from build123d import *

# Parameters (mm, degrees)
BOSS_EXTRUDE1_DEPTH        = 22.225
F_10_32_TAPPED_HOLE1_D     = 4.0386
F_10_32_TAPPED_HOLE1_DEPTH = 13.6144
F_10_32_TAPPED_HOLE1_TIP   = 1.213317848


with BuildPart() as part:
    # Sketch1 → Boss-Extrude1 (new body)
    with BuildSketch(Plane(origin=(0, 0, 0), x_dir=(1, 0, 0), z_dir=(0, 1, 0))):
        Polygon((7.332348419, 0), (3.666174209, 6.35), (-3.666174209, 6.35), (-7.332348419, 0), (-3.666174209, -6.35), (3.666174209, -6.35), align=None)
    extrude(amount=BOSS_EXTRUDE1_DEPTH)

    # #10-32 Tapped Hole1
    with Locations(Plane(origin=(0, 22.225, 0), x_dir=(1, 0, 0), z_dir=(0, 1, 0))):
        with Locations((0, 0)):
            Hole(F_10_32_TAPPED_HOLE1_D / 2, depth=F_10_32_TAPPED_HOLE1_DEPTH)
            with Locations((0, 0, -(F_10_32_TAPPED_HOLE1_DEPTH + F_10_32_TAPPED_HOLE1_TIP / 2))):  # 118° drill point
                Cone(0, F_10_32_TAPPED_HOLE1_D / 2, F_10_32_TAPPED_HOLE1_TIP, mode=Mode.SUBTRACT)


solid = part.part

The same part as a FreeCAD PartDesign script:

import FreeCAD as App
import Part
import Sketcher
from FreeCAD import Vector
Q = App.Units.Quantity


def add_polygon(sketch, points):
    """Adds a closed chain of lines whose ends are joined by coincident constraints."""
    first, n = sketch.GeometryCount, len(points)
    for a, b in zip(points, points[1:] + points[:1]):
        sketch.addGeometry(Part.LineSegment(App.Vector(*a, 0), App.Vector(*b, 0)), False)
    for i in range(n):
        sketch.addConstraint(Sketcher.Constraint("Coincident", first + i, 2, first + (i + 1) % n, 1))

doc = App.newDocument("Part")
params = doc.addObject("Spreadsheet::Sheet", "Params")
for row, (alias, value) in enumerate([
    ("pad1_length", "0.875 in"),
    ("sketch2_diameter", "0.159 in"),
    ("hole_diameter", "0.159 in"),
    ("hole_depth", "0.536 in"),
], start=1):
    params.set(f"A{row}", alias)
    params.set(f"B{row}", "=" + value)
    params.setAlias(f"B{row}", alias)

body = doc.addObject("PartDesign::Body", "Body")

sketch1 = body.newObject("Sketcher::SketchObject", "Sketch")
sketch1.AttachmentSupport = (doc.getObject("XZ_Plane"), [""])
sketch1.MapMode = "FlatFace"
add_polygon(sketch1, [(7.332348, 0), (3.666174, -6.35), (-3.666174, -6.35), (-7.332348, 0), (-3.666174, 6.35), (3.666174, 6.35)])
sketch1.addConstraint(Sketcher.Constraint("Horizontal", 1))
sketch1.addConstraint(Sketcher.Constraint("Horizontal", 4))
sketch1.addConstraint(Sketcher.Constraint("Symmetric", 0, 2, 3, 2, -1, 1))
sketch1.addConstraint(Sketcher.Constraint("Symmetric", 2, 2, 5, 2, -1, 1))
sketch1.addConstraint(Sketcher.Constraint("PointOnObject", 2, 2, -1))
sketch1.addConstraint(Sketcher.Constraint("Parallel", 2, 5))
sketch1.addConstraint(Sketcher.Constraint("Vertical", 1, 2, 3, 2))
sketch1.addConstraint(Sketcher.Constraint("Angle", 0, Q("-120 deg")))
sketch1.addConstraint(Sketcher.Constraint("DistanceY", 1, 2, 3, 2, Q("0.5 in")))
sketch1.addConstraint(Sketcher.Constraint("DistanceX", 1, 2, 1, 1, 7.332348))
pad1 = body.newObject("PartDesign::Pad", "Pad")
pad1.Profile = sketch1
pad1.setExpression("Length", "Params.pad1_length")
pad1.Reversed = True

sketch2 = body.newObject("Sketcher::SketchObject", "Sketch001")
sketch2.AttachmentSupport = (doc.getObject("XZ_Plane"), [""])
sketch2.MapMode = "FlatFace"
sketch2.AttachmentOffset = App.Placement(Vector(0, 0, -0.875 * 25.4), App.Rotation())
sketch2.addGeometry(Part.Circle(Vector(0, 0, 0), Vector(0, 0, 1), 2.0193), False)
sketch2.addConstraint(Sketcher.Constraint("Coincident", 0, 3, -1, 1))
sketch2.addConstraint(Sketcher.Constraint("Diameter", 0, Q("0.159 in")))
sketch2.setExpression("Constraints[1]", "Params.sketch2_diameter")
doc.recompute()
hole = body.newObject("PartDesign::Hole", "Hole")
hole.Profile = sketch2
hole.ThreadType = "None"
hole.setExpression("Diameter", "Params.hole_diameter")
hole.DepthType = "Dimension"
hole.setExpression("Depth", "Params.hole_depth")
hole.DrillPoint = "Angled"
hole.DrillPointAngle = 118
hole.Reversed = True

doc.recompute()
